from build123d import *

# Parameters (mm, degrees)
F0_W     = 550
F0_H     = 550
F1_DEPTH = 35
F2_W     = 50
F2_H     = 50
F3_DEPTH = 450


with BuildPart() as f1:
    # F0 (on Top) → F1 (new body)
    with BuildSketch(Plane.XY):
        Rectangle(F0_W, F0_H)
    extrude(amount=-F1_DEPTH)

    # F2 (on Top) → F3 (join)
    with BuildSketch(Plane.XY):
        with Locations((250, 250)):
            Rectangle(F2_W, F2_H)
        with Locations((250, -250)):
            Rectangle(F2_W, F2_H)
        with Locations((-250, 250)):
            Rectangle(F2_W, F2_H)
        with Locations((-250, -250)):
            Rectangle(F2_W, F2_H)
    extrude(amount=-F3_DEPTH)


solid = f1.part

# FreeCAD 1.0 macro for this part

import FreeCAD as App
import Part
import Sketcher
Q = App.Units.Quantity

doc = App.newDocument("Part")
params = doc.addObject("Spreadsheet::Sheet", "Params")
for row, (alias, value) in enumerate([
    ("sketch1_width", "550 mm"),
    ("pad1_length", "35 mm"),
    ("sketch2_width", "50 mm"),
    ("pad2_length", "450 mm"),
], start=1):
    params.set(f"A{row}", alias)
    params.set(f"B{row}", "=" + value)
    params.setAlias(f"B{row}", alias)

body = doc.addObject("PartDesign::Body", "Body")

# Sketch on XY plane
sketch1 = body.newObject("Sketcher::SketchObject", "Sketch")
sketch1.AttachmentSupport = (doc.getObject("XY_Plane"), [""])
sketch1.MapMode = "FlatFace"
sketch1.addGeometry([
    Part.LineSegment(App.Vector(-275, 275, 0), App.Vector(-275, -275, 0)),
    Part.LineSegment(App.Vector(-275, -275, 0), App.Vector(275, -275, 0)),
    Part.LineSegment(App.Vector(275, -275, 0), App.Vector(275, 275, 0)),
    Part.LineSegment(App.Vector(275, 275, 0), App.Vector(-275, 275, 0)),
], False)
sketch1.addConstraint([
    Sketcher.Constraint("Coincident", 0, 2, 1, 1),
    Sketcher.Constraint("Coincident", 1, 2, 2, 1),
    Sketcher.Constraint("Coincident", 2, 2, 3, 1),
    Sketcher.Constraint("Coincident", 3, 2, 0, 1),
    Sketcher.Constraint("Vertical", 0),
    Sketcher.Constraint("Horizontal", 1),
    Sketcher.Constraint("Vertical", 2),
    Sketcher.Constraint("Horizontal", 3),
    Sketcher.Constraint("Symmetric", 0, 2, 2, 2, -1, 1),
    Sketcher.Constraint("Equal", 3, 0),
    Sketcher.Constraint("DistanceX", 1, 1, 1, 2, Q("550 mm")),
])
sketch1.setExpression("Constraints[10]", "Params.sketch1_width")
pad1 = body.newObject("PartDesign::Pad", "Pad")
pad1.Profile = sketch1
pad1.setExpression("Length", "Params.pad1_length")
pad1.Reversed = True

# Sketch on XY plane
sketch2 = body.newObject("Sketcher::SketchObject", "Sketch001")
sketch2.AttachmentSupport = (doc.getObject("XY_Plane"), [""])
sketch2.MapMode = "FlatFace"
sketch2.addGeometry([
    Part.LineSegment(App.Vector(225, 275, 0), App.Vector(225, 225, 0)),  # 0
    Part.LineSegment(App.Vector(225, 225, 0), App.Vector(275, 225, 0)),  # 1
    Part.LineSegment(App.Vector(275, 225, 0), App.Vector(275, 275, 0)),  # 2
    Part.LineSegment(App.Vector(275, 275, 0), App.Vector(225, 275, 0)),  # 3
    Part.LineSegment(App.Vector(225, -225, 0), App.Vector(225, -275, 0)),  # 4
    Part.LineSegment(App.Vector(225, -275, 0), App.Vector(275, -275, 0)),  # 5
    Part.LineSegment(App.Vector(275, -275, 0), App.Vector(275, -225, 0)),  # 6
    Part.LineSegment(App.Vector(275, -225, 0), App.Vector(225, -225, 0)),  # 7
    Part.LineSegment(App.Vector(-275, 275, 0), App.Vector(-275, 225, 0)),  # 8
    Part.LineSegment(App.Vector(-275, 225, 0), App.Vector(-225, 225, 0)),  # 9
    Part.LineSegment(App.Vector(-225, 225, 0), App.Vector(-225, 275, 0)),  # 10
    Part.LineSegment(App.Vector(-225, 275, 0), App.Vector(-275, 275, 0)),  # 11
    Part.LineSegment(App.Vector(-275, -225, 0), App.Vector(-275, -275, 0)),  # 12
    Part.LineSegment(App.Vector(-275, -275, 0), App.Vector(-225, -275, 0)),  # 13
    Part.LineSegment(App.Vector(-225, -275, 0), App.Vector(-225, -225, 0)),  # 14
    Part.LineSegment(App.Vector(-225, -225, 0), App.Vector(-275, -225, 0)),  # 15
], False)
sketch2.addConstraint([
    Sketcher.Constraint("Coincident", 0, 2, 1, 1),
    Sketcher.Constraint("Coincident", 1, 2, 2, 1),
    Sketcher.Constraint("Coincident", 2, 2, 3, 1),
    Sketcher.Constraint("Coincident", 3, 2, 0, 1),
    Sketcher.Constraint("Coincident", 4, 2, 5, 1),
    Sketcher.Constraint("Coincident", 5, 2, 6, 1),
    Sketcher.Constraint("Coincident", 6, 2, 7, 1),
    Sketcher.Constraint("Coincident", 7, 2, 4, 1),
    Sketcher.Constraint("Coincident", 8, 2, 9, 1),
    Sketcher.Constraint("Coincident", 9, 2, 10, 1),
    Sketcher.Constraint("Coincident", 10, 2, 11, 1),
    Sketcher.Constraint("Coincident", 11, 2, 8, 1),
    Sketcher.Constraint("Coincident", 12, 2, 13, 1),
    Sketcher.Constraint("Coincident", 13, 2, 14, 1),
    Sketcher.Constraint("Coincident", 14, 2, 15, 1),
    Sketcher.Constraint("Coincident", 15, 2, 12, 1),
    Sketcher.Constraint("Vertical", 0),
    Sketcher.Constraint("Horizontal", 1),
    Sketcher.Constraint("Vertical", 2),
    Sketcher.Constraint("Horizontal", 3),
    Sketcher.Constraint("Vertical", 4),
    Sketcher.Constraint("Horizontal", 5),
    Sketcher.Constraint("Vertical", 6),
    Sketcher.Constraint("Horizontal", 7),
    Sketcher.Constraint("Vertical", 8),
    Sketcher.Constraint("Horizontal", 9),
    Sketcher.Constraint("Vertical", 10),
    Sketcher.Constraint("Horizontal", 11),
    Sketcher.Constraint("Vertical", 12),
    Sketcher.Constraint("Horizontal", 13),
    Sketcher.Constraint("Vertical", 14),
    Sketcher.Constraint("Horizontal", 15),
    Sketcher.Constraint("Symmetric", 6, 2, 8, 2, -1, 1),
    Sketcher.Constraint("Symmetric", 4, 2, 10, 2, -1, 1),
    Sketcher.Constraint("Symmetric", 2, 2, 12, 2, -1, 1),
    Sketcher.Constraint("Symmetric", 0, 2, 14, 2, -1, 1),
    Sketcher.Constraint("Symmetric", 1, 2, 8, 2, -2),
    Sketcher.Constraint("Symmetric", 3, 2, 10, 2, -2),
    Sketcher.Constraint("Equal", 15, 0),
    Sketcher.Constraint("DistanceX", 1, 1, 1, 2, Q("50 mm")),
    Sketcher.Constraint("DistanceX", -1, 1, 0, 2, Q("225 mm")),
    Sketcher.Constraint("DistanceY", -1, 1, 0, 2, Q("225 mm")),
])
sketch2.setExpression("Constraints[39]", "Params.sketch2_width")
pad2 = body.newObject("PartDesign::Pad", "Pad001")
pad2.Profile = sketch2
pad2.setExpression("Length", "Params.pad2_length")
pad2.Reversed = True

doc.recompute()
